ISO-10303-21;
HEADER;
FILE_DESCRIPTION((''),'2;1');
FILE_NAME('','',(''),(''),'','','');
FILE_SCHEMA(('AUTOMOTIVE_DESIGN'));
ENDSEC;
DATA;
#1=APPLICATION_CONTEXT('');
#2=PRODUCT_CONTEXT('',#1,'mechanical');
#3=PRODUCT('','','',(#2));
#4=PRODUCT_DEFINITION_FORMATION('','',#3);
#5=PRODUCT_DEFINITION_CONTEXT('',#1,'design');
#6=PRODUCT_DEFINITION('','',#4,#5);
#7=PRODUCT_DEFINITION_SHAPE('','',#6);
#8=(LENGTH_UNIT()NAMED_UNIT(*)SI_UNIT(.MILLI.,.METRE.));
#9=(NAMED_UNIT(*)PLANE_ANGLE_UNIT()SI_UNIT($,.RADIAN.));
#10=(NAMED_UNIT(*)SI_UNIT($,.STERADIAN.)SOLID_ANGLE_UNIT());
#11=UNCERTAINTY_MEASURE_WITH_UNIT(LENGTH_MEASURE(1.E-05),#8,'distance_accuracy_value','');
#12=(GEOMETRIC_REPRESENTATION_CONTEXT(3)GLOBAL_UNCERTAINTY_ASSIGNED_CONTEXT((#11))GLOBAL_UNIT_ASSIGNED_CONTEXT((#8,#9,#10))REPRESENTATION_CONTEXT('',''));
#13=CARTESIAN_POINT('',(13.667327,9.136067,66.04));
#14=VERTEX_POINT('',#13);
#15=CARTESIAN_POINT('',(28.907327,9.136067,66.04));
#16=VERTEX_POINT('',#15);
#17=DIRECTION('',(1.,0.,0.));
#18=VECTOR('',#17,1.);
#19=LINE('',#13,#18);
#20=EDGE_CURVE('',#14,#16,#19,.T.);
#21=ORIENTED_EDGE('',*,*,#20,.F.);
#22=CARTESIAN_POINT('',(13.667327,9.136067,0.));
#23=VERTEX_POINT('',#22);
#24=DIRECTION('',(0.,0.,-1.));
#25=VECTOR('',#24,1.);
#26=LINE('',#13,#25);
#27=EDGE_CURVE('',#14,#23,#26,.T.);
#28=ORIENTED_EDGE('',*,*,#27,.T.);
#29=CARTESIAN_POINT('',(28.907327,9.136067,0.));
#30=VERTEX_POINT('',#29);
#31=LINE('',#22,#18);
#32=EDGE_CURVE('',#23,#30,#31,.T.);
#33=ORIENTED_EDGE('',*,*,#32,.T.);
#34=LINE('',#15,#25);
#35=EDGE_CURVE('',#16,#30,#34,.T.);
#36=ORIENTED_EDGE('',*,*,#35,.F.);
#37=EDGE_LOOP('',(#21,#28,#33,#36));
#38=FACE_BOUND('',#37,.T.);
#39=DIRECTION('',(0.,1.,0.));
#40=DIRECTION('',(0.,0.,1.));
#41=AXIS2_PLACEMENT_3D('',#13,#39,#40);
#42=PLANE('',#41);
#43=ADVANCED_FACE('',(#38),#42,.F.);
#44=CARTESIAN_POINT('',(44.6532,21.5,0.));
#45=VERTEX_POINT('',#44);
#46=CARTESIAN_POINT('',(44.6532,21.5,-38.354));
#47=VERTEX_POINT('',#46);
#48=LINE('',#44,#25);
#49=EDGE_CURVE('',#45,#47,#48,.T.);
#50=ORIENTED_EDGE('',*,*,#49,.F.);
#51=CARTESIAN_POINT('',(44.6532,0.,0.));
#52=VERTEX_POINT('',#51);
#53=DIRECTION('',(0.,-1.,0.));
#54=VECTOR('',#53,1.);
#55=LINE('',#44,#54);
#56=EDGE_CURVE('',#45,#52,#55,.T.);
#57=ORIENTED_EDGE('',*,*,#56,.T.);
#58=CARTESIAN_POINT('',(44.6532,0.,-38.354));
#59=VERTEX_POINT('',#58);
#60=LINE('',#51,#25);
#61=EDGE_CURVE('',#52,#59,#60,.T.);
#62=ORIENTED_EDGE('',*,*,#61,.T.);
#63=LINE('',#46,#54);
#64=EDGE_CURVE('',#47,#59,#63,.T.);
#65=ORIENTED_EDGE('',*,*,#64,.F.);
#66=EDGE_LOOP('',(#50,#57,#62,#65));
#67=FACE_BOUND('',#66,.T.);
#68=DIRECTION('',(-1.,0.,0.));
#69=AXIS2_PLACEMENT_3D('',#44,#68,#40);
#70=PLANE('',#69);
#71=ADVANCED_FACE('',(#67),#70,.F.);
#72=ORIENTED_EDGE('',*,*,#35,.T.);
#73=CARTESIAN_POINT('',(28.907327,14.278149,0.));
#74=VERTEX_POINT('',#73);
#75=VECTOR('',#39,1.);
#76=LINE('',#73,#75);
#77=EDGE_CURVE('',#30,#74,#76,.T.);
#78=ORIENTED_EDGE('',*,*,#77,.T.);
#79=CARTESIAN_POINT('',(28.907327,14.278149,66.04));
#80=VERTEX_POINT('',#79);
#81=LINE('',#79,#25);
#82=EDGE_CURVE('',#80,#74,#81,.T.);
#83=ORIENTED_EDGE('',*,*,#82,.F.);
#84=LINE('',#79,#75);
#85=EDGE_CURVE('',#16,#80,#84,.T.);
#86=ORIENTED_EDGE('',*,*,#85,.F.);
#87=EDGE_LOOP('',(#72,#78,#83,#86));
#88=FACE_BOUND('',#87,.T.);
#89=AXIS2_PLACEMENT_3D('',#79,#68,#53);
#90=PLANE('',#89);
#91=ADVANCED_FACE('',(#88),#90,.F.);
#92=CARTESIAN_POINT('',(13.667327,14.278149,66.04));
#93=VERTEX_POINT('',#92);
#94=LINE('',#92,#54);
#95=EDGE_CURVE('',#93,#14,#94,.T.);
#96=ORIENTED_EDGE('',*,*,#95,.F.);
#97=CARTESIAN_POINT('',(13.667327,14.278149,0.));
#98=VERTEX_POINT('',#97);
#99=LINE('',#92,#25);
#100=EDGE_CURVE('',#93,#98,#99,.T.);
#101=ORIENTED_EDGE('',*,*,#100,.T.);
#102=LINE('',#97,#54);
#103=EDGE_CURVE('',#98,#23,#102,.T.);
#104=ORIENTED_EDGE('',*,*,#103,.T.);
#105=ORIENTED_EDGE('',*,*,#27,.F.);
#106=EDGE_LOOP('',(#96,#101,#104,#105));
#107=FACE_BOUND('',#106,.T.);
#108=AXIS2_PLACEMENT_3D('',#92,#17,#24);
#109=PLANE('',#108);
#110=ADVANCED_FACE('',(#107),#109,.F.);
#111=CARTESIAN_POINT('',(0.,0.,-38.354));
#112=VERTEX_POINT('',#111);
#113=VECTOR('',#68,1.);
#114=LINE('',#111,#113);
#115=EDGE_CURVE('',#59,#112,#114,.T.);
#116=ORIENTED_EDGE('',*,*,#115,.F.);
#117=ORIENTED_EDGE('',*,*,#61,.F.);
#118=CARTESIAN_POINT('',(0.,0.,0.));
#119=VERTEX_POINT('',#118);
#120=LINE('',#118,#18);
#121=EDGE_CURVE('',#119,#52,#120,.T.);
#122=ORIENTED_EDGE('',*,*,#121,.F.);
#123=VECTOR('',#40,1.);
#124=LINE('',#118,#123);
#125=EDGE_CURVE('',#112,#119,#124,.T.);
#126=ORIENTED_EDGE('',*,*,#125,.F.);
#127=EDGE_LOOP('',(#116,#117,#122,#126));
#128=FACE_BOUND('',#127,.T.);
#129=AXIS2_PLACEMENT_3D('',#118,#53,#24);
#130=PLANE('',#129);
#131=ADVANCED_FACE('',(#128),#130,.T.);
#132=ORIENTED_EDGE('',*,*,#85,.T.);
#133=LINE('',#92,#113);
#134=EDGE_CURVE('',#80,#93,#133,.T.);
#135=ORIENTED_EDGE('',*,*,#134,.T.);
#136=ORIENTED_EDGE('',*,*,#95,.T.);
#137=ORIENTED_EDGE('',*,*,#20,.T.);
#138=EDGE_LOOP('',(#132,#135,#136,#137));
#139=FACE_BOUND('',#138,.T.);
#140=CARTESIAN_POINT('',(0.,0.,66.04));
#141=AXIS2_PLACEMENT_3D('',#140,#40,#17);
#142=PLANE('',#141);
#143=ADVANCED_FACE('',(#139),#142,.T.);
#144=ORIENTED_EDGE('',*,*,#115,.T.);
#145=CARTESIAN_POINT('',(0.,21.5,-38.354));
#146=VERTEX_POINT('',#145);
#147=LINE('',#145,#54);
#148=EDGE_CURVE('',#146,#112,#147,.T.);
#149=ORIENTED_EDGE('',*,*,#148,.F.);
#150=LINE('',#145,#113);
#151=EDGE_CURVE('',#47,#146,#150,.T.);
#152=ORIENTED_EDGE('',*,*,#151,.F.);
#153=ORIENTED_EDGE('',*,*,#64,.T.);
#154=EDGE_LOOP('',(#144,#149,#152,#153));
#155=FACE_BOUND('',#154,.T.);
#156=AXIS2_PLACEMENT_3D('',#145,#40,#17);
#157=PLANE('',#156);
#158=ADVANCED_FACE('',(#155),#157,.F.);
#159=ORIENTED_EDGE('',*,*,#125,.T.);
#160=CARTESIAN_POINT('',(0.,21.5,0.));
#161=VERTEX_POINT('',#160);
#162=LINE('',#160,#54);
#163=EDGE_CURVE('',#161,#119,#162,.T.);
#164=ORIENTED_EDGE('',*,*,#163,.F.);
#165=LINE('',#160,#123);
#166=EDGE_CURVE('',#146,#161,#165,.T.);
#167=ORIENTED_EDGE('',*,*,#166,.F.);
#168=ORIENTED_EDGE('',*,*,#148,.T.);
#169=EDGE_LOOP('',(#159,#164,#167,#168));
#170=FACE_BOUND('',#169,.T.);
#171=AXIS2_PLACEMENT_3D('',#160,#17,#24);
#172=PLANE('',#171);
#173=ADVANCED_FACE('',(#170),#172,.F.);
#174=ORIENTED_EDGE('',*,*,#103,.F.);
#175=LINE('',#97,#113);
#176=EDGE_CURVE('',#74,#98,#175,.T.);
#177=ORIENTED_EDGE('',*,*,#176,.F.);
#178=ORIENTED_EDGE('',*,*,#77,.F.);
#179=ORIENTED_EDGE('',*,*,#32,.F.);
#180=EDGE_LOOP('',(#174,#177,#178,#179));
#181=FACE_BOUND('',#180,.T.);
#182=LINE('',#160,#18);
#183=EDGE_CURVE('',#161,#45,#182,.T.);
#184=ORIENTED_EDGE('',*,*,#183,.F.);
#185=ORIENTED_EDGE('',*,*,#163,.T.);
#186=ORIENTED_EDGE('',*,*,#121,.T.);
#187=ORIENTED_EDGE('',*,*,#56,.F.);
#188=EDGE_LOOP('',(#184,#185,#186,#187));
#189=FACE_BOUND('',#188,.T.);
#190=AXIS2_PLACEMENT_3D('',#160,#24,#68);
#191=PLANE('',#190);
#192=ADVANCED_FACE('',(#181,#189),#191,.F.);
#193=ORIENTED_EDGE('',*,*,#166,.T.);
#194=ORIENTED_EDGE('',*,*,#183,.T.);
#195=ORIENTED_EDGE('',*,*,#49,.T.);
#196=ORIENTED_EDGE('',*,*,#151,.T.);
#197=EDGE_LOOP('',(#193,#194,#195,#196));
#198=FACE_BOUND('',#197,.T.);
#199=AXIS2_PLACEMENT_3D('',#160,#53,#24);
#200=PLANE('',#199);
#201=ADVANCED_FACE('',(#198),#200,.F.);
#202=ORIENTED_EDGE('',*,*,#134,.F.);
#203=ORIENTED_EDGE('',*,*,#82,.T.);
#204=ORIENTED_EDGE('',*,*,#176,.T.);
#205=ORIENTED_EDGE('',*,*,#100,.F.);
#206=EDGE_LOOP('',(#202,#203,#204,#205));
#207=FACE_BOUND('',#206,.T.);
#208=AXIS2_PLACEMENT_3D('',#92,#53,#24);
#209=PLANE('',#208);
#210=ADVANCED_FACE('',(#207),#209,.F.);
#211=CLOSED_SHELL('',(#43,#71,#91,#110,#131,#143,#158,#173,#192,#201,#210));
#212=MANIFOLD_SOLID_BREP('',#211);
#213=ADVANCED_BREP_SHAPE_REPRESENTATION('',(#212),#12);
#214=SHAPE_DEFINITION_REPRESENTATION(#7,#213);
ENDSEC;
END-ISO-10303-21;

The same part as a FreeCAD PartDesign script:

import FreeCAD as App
import Part
import Sketcher

V = App.Vector
Q = App.Units.Quantity


def add_polygon(sketch, points):
    """Adds a closed chain of lines whose ends are joined by coincident constraints."""
    first, n = sketch.GeometryCount, len(points)
    for a, b in zip(points, points[1:] + points[:1]):
        sketch.addGeometry(Part.LineSegment(App.Vector(*a, 0), App.Vector(*b, 0)), False)
    for i in range(n):
        sketch.addConstraint(Sketcher.Constraint("Coincident", first + i, 2, first + (i + 1) % n, 1))

doc = App.newDocument("Part")
body = doc.addObject("PartDesign::Body", "Body")

# Sketch on XZ plane
sketch1 = body.newObject("Sketcher::SketchObject", "Sketch")
sketch1.AttachmentSupport = (doc.getObject("XZ_Plane"), [""])
sketch1.MapMode = "FlatFace"
add_polygon(sketch1, [(0, -38), (0, 0), (45, 0), (45, -38)])  # lines 0-3
sketch1.addConstraint([
    Sketcher.Constraint("Vertical", 0),
    Sketcher.Constraint("Horizontal", 1),
    Sketcher.Constraint("Vertical", 2),
    Sketcher.Constraint("Horizontal", 3),
    Sketcher.Constraint("Coincident", 0, 2, -1, 1),
    Sketcher.Constraint("DistanceY", 0, 1, 0, 2, Q("1.51 in")),
    Sketcher.Constraint("DistanceX", 1, 1, 1, 2, Q("1.758 in")),
])
pad1 = body.newObject("PartDesign::Pad", "Pad")
pad1.Profile = sketch1
pad1.Length = 21.5
pad1.Reversed = True

# Sketch on XY plane
sketch2 = body.newObject("Sketcher::SketchObject", "Sketch001")
sketch2.AttachmentSupport = (doc.getObject("XY_Plane"), [""])
sketch2.MapMode = "FlatFace"
add_polygon(sketch2, [(14, 14), (14, 9), (29, 9), (29, 14)])  # lines 0-3
sketch2.addConstraint([
    Sketcher.Constraint("Vertical", 0),
    Sketcher.Constraint("Horizontal", 1),
    Sketcher.Constraint("Vertical", 2),
    Sketcher.Constraint("Horizontal", 3),
    Sketcher.Constraint("DistanceX", 1, 1, 1, 2, Q("0.6 in")),
    Sketcher.Constraint("DistanceY", 0, 2, 0, 1, 5.142082),
    Sketcher.Constraint("DistanceY", -1, 1, 2, 2, 14.278149),
    Sketcher.Constraint("DistanceX", -1, 1, 0, 2, 13.667327),
])
pad2 = body.newObject("PartDesign::Pad", "Pad001")
pad2.Profile = sketch2
pad2.Length = Q("2.6 in")

doc.recompute()
